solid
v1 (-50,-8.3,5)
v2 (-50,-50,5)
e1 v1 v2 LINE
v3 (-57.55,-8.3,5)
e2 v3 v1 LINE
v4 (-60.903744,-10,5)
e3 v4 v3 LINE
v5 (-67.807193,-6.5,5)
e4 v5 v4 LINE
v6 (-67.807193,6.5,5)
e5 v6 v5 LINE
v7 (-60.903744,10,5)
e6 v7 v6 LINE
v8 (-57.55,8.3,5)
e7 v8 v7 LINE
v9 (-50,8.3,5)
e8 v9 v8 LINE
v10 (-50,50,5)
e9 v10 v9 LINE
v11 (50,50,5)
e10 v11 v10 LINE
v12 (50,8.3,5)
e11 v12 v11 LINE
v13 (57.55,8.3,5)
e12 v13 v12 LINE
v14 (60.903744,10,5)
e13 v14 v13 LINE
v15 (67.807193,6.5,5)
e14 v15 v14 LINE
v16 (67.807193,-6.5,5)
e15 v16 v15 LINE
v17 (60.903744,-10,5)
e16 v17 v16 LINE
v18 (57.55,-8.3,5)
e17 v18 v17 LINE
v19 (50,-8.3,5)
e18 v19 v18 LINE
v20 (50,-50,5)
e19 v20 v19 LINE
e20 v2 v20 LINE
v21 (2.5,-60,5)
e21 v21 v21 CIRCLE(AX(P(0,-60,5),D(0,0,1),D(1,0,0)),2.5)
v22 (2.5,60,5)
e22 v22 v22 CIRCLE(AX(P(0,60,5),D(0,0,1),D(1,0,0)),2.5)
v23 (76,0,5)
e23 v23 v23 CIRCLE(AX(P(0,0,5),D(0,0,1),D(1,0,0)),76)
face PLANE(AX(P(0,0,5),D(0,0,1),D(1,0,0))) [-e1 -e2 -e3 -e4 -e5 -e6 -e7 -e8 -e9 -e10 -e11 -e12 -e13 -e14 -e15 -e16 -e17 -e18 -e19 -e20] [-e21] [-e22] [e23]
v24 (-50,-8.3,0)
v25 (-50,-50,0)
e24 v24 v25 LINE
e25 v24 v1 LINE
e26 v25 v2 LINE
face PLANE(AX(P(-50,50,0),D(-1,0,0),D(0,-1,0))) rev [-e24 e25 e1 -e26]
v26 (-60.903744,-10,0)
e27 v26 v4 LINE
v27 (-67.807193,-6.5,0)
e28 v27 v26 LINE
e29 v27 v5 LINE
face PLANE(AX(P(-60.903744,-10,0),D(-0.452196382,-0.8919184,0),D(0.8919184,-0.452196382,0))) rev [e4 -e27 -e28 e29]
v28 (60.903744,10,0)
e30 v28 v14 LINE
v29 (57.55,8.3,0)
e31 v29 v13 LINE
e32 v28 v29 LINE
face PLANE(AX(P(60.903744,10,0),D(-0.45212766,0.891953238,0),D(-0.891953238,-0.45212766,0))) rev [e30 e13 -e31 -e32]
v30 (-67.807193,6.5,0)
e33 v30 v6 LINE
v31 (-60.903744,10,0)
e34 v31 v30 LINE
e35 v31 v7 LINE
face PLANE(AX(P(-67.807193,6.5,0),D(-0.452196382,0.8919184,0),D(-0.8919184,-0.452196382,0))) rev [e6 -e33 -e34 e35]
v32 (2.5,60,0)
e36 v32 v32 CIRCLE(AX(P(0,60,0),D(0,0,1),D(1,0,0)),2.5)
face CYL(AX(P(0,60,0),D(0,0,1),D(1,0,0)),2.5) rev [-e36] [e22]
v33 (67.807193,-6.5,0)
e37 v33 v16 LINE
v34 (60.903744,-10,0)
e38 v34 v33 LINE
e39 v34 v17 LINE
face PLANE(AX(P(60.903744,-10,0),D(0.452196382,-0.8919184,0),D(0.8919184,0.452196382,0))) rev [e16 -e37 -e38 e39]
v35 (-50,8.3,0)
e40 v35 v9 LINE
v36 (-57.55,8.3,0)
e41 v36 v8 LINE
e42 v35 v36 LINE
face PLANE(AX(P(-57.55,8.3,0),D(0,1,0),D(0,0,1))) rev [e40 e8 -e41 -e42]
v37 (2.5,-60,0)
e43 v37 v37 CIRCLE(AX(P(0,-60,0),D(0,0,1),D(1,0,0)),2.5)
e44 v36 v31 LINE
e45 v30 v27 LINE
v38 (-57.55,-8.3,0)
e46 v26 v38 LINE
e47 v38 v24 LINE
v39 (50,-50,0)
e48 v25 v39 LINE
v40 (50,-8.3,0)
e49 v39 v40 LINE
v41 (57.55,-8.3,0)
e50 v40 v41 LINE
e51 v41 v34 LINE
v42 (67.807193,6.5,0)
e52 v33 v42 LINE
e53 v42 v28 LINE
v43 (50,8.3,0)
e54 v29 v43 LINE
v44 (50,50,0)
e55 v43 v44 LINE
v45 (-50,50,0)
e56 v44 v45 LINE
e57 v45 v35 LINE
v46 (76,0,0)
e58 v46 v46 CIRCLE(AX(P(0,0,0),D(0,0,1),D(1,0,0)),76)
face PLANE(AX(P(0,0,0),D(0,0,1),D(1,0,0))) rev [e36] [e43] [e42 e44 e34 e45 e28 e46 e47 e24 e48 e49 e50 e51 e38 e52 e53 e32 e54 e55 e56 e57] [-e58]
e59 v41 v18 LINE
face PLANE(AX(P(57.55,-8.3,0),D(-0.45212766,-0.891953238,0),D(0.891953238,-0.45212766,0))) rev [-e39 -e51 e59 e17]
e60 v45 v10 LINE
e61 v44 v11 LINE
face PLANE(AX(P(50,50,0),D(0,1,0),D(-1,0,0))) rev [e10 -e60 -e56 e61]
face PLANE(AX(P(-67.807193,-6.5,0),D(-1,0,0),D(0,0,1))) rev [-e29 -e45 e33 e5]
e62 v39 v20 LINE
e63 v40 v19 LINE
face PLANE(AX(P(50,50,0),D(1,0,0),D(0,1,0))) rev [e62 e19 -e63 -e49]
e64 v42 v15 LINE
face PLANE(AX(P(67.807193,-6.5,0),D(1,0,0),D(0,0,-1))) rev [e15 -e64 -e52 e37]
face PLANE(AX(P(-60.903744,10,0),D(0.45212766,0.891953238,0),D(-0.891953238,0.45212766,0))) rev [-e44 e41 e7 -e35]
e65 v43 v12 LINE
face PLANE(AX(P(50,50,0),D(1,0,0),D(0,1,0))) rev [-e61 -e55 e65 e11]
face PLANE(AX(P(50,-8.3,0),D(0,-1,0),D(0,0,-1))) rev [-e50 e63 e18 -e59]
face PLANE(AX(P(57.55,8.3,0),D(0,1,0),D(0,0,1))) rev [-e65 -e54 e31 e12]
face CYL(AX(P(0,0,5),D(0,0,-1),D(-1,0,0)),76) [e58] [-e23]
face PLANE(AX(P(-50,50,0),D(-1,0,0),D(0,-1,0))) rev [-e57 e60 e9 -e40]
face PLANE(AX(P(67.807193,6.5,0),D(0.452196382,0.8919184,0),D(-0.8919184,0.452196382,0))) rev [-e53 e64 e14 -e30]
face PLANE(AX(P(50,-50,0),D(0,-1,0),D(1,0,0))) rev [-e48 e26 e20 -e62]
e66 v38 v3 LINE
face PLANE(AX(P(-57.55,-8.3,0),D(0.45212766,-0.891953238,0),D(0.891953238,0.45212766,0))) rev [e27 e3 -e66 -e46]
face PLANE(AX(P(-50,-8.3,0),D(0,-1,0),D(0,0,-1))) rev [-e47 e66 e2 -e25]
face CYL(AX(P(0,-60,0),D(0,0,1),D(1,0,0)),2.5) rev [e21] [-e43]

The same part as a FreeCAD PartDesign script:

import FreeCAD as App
import Part
import Sketcher
from FreeCAD import Vector
Q = App.Units.Quantity


def add_polygon(sketch, points):
    """Adds a closed chain of lines whose ends are joined by coincident constraints."""
    first, n = sketch.GeometryCount, len(points)
    for a, b in zip(points, points[1:] + points[:1]):
        sketch.addGeometry(Part.LineSegment(App.Vector(*a, 0), App.Vector(*b, 0)), False)
    for i in range(n):
        sketch.addConstraint(Sketcher.Constraint("Coincident", first + i, 2, first + (i + 1) % n, 1))

doc = App.newDocument("Part")
body = doc.addObject("PartDesign::Body", "Body")

sketch1 = body.newObject("Sketcher::SketchObject", "Sketch")
sketch1.AttachmentSupport = (doc.getObject("XY_Plane"), [""])
sketch1.MapMode = "FlatFace"
sketch1.addGeometry(Part.Circle(Vector(0, 0, 0), Vector(0, 0, 1), 76), False)
sketch1.addConstraint(Sketcher.Constraint("Coincident", 0, 3, -1, 1))
sketch1.addConstraint(Sketcher.Constraint("Diameter", 0, Q("152 mm")))
pad1 = body.newObject("PartDesign::Pad", "Pad")
pad1.Profile = sketch1
pad1.Length = 5

sketch2 = body.newObject("Sketcher::SketchObject", "Sketch001")
sketch2.AttachmentSupport = (doc.getObject("XY_Plane"), [""])
sketch2.MapMode = "FlatFace"
sketch2.AttachmentOffset = App.Placement(Vector(0, 0, 5), App.Rotation())
add_polygon(sketch2, [(-50, 50), (-50, -50), (50, -50), (50, 50)])
sketch2.addConstraint(Sketcher.Constraint("Vertical", 0))
sketch2.addConstraint(Sketcher.Constraint("Horizontal", 1))
sketch2.addConstraint(Sketcher.Constraint("Vertical", 2))
sketch2.addConstraint(Sketcher.Constraint("Horizontal", 3))
sketch2.addConstraint(Sketcher.Constraint("Symmetric", 0, 2, 2, 2, -1, 1))
sketch2.addConstraint(Sketcher.Constraint("Equal", 3, 0))
sketch2.addConstraint(Sketcher.Constraint("DistanceX", 1, 1, 1, 2, Q("100 mm")))
pocket1 = body.newObject("PartDesign::Pocket", "Pocket")
pocket1.Profile = sketch2
pocket1.Length = 5

sketch3 = body.newObject("Sketcher::SketchObject", "Sketch002")
sketch3.AttachmentSupport = (doc.getObject("XY_Plane"), [""])
sketch3.MapMode = "FlatFace"
sketch3.AttachmentOffset = App.Placement(Vector(0, 0, 5), App.Rotation())
sketch3.addGeometry(Part.Circle(Vector(0, 60, 0), Vector(0, 0, 1), 2.5), False)
sketch3.addGeometry(Part.Circle(Vector(0, -60, 0), Vector(0, 0, 1), 2.5), False)
sketch3.addConstraint(Sketcher.Constraint("Equal", 0, 1))
sketch3.addConstraint(Sketcher.Constraint("Symmetric", 0, 3, 1, 3, -1, 1))
sketch3.addConstraint(Sketcher.Constraint("PointOnObject", 0, 3, -2))
sketch3.addConstraint(Sketcher.Constraint("Diameter", 0, Q("5 mm")))
sketch3.addConstraint(Sketcher.Constraint("DistanceY", -1, 1, 0, 3, Q("60 mm")))
pocket2 = body.newObject("PartDesign::Pocket", "Pocket001")
pocket2.Profile = sketch3
pocket2.Length = 5

sketch4 = body.newObject("Sketcher::SketchObject", "Sketch003")
sketch4.AttachmentSupport = (doc.getObject("XY_Plane"), [""])
sketch4.MapMode = "FlatFace"
sketch4.AttachmentOffset = App.Placement(Vector(0, 0, 5), App.Rotation())
add_polygon(sketch4, [(-50, -8.3), (-50, 8.3), (-57.5, 8.3), (-60.9, 10), (-67.8, 6.5), (-67.8, -6.5), (-60.9, -10), (-57.5, -8.3)])
add_polygon(sketch4, [(57.5, 8.3), (50, 8.3), (50, -8.3), (57.5, -8.3), (60.9, -10), (67.8, -6.5), (67.8, 6.5), (60.9, 10)])
sketch4.addConstraint(Sketcher.Constraint("Vertical", 0))
sketch4.addConstraint(Sketcher.Constraint("Horizontal", 1))
sketch4.addConstraint(Sketcher.Constraint("Vertical", 4))
sketch4.addConstraint(Sketcher.Constraint("Horizontal", 7))
sketch4.addConstraint(Sketcher.Constraint("Horizontal", 8))
sketch4.addConstraint(Sketcher.Constraint("Vertical", 9))
sketch4.addConstraint(Sketcher.Constraint("Horizontal", 10))
sketch4.addConstraint(Sketcher.Constraint("Vertical", 13))
sketch4.addConstraint(Sketcher.Constraint("Symmetric", 7, 2, 8, 2, -1, 1))
sketch4.addConstraint(Sketcher.Constraint("Symmetric", 1, 2, 10, 2, -1, 1))
sketch4.addConstraint(Sketcher.Constraint("Symmetric", 2, 2, 11, 2, -1, 1))
sketch4.addConstraint(Sketcher.Constraint("Symmetric", 3, 2, 12, 2, -1, 1))
sketch4.addConstraint(Sketcher.Constraint("Symmetric", 5, 2, 14, 2, -1, 1))
sketch4.addConstraint(Sketcher.Constraint("Symmetric", 6, 2, 10, 2, -2))
sketch4.addConstraint(Sketcher.Constraint("Symmetric", 5, 2, 11, 2, -2))
sketch4.addConstraint(Sketcher.Constraint("Parallel", 5, 14))
sketch4.addConstraint(Sketcher.Constraint("Parallel", 6, 15))
sketch4.addConstraint(Sketcher.Constraint("Horizontal", 4, 2, 12, 2))
sketch4.addConstraint(Sketcher.Constraint("DistanceY", 4, 2, 4, 1, Q("13 mm")))
sketch4.addConstraint(Sketcher.Constraint("DistanceY", 0, 1, 0, 2, Q("16.6 mm")))
sketch4.addConstraint(Sketcher.Constraint("DistanceX", 0, 2, -1, 1, Q("50 mm")))
sketch4.addConstraint(Sketcher.Constraint("DistanceY", -1, 1, 2, 2, Q("10 mm")))
sketch4.addConstraint(Sketcher.Constraint("DistanceX", 1, 2, 1, 1, Q("7.55 mm")))
sketch4.addConstraint(Sketcher.Constraint("Distance", 2, Q("3.76 mm")))
sketch4.addConstraint(Sketcher.Constraint("Distance", 3, Q("7.74 mm")))
pocket3 = body.newObject("PartDesign::Pocket", "Pocket002")
pocket3.Profile = sketch4
pocket3.Length = 5

doc.recompute()
